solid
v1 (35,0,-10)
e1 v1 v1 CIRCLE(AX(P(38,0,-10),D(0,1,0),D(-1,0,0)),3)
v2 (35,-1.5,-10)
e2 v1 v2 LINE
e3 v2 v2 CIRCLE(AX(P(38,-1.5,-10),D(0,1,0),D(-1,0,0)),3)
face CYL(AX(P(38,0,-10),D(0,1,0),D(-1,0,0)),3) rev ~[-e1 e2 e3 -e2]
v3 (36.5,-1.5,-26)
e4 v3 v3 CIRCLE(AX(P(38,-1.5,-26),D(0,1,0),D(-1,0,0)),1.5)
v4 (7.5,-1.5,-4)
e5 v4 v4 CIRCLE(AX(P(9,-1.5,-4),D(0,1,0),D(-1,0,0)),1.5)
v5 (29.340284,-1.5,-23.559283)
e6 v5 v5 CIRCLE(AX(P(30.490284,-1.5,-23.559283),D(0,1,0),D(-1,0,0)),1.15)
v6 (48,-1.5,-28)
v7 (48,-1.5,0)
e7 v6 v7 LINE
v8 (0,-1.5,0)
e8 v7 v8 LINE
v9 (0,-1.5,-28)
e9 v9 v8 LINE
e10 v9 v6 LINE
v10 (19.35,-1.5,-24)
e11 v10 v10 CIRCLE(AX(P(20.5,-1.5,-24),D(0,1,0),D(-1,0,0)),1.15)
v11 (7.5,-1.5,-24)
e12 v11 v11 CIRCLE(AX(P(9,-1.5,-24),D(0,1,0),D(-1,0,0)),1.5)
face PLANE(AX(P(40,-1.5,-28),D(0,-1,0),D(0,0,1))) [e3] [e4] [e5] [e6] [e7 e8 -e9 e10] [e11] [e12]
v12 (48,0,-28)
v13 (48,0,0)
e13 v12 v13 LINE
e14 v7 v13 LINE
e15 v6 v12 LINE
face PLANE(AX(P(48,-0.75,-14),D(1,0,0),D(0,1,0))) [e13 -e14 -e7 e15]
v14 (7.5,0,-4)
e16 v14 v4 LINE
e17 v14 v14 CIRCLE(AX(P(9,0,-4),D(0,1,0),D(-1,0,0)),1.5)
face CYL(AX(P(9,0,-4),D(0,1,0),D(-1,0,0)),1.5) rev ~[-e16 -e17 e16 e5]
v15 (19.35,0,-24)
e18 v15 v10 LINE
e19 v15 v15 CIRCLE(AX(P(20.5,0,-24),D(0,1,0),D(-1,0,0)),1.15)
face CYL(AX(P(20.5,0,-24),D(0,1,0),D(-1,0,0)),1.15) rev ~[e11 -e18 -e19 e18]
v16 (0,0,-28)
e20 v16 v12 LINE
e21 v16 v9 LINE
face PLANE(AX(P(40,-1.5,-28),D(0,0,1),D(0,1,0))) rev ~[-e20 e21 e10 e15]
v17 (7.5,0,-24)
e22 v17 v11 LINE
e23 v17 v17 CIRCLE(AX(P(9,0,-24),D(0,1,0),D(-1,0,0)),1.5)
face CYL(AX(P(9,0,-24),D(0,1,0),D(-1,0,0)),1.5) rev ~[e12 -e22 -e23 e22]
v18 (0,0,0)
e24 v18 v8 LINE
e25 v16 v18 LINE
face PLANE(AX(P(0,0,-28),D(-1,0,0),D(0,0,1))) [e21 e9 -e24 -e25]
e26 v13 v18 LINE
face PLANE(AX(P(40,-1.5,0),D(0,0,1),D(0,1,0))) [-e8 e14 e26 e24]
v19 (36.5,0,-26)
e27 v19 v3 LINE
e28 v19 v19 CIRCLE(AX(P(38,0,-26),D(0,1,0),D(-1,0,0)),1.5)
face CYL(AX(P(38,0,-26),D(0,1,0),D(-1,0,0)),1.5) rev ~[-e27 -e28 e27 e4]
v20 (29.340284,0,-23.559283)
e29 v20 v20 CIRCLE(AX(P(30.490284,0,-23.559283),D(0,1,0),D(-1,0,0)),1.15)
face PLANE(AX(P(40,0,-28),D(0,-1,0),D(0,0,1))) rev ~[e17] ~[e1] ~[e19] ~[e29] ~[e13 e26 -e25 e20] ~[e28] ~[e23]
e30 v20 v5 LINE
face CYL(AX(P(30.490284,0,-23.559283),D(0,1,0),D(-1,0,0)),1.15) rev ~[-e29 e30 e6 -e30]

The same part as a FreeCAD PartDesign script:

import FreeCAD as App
import Part
import Sketcher
Q = App.Units.Quantity


def add_polygon(sketch, points):
    """Adds a closed chain of lines whose ends are joined by coincident constraints."""
    first, n = sketch.GeometryCount, len(points)
    for a, b in zip(points, points[1:] + points[:1]):
        sketch.addGeometry(Part.LineSegment(App.Vector(*a, 0), App.Vector(*b, 0)), False)
    for i in range(n):
        sketch.addConstraint(Sketcher.Constraint("Coincident", first + i, 2, first + (i + 1) % n, 1))

doc = App.newDocument("Part")
body = doc.addObject("PartDesign::Body", "Body")

sketch1 = body.newObject("Sketcher::SketchObject", "Sketch")
sketch1.AttachmentSupport = (doc.getObject("XZ_Plane"), [""])
sketch1.MapMode = "FlatFace"
add_polygon(sketch1, [(0, 0), (0, -28), (40, -28), (40, 0)])
sketch1.addConstraint([
    Sketcher.Constraint("Vertical", 0),
    Sketcher.Constraint("Horizontal", 1),
    Sketcher.Constraint("Vertical", 2),
    Sketcher.Constraint("Horizontal", 3),
    Sketcher.Constraint("Coincident", 3, 2, -1, 1),
    Sketcher.Constraint("DistanceX", 1, 1, 1, 2, Q("40 mm")),
    Sketcher.Constraint("DistanceY", 0, 2, 0, 1, Q("28 mm")),
])
pad1 = body.newObject("PartDesign::Pad", "Pad")
pad1.Profile = sketch1
pad1.Length = 1.5

sketch2 = body.newObject("Sketcher::SketchObject", "Sketch001")
sketch2.AttachmentSupport = (doc.getObject("XZ_Plane"), [""])
sketch2.MapMode = "FlatFace"
sketch2.addGeometry([
    Part.Circle(App.Vector(38, -26, 0), App.Vector(0, 0, 1), 1.5),
    Part.Circle(App.Vector(9, -24, 0), App.Vector(0, 0, 1), 1.5),
    Part.Circle(App.Vector(9, -4, 0), App.Vector(0, 0, 1), 1.5),
], False)
sketch2.addConstraint([
    Sketcher.Constraint("Equal", 0, 1),
    Sketcher.Constraint("Equal", 1, 2),
    Sketcher.Constraint("Vertical", 1, 3, 2, 3),
    Sketcher.Constraint("Diameter", 0, Q("3 mm")),
    Sketcher.Constraint("DistanceX", -1, 1, 0, 3, Q("38 mm")),
    Sketcher.Constraint("DistanceY", 0, 3, -1, 1, Q("26 mm")),
    Sketcher.Constraint("DistanceX", -1, 1, 1, 3, Q("9 mm")),
    Sketcher.Constraint("DistanceY", 1, 3, -1, 1, Q("24 mm")),
    Sketcher.Constraint("DistanceY", 2, 3, -1, 1, Q("4 mm")),
])
pocket1 = body.newObject("PartDesign::Pocket", "Pocket")
pocket1.Profile = sketch2
pocket1.Type = "ThroughAll"
pocket1.Reversed = True

sketch3 = body.newObject("Sketcher::SketchObject", "Sketch002")
sketch3.AttachmentSupport = (doc.getObject("XZ_Plane"), [""])
sketch3.MapMode = "FlatFace"
sketch3.addGeometry([
    Part.Circle(App.Vector(20.5, -24, 0), App.Vector(0, 0, 1), 1.1),
    Part.Circle(App.Vector(30.5, -23.6, 0), App.Vector(0, 0, 1), 1.1),
], False)
sketch3.addConstraint([
    Sketcher.Constraint("Equal", 0, 1),
    Sketcher.Constraint("Diameter", 0, Q("2.3 mm")),
    Sketcher.Constraint("DistanceY", 0, 3, -1, 1, Q("24 mm")),
    Sketcher.Constraint("DistanceX", -1, 1, 0, 3, Q("20.5 mm")),
    Sketcher.Constraint("DistanceX", -1, 1, 1, 3, Q("30.490284 mm")),
    Sketcher.Constraint("DistanceY", 1, 3, -1, 1, Q("23.559283 mm")),
])
pocket2 = body.newObject("PartDesign::Pocket", "Pocket001")
pocket2.Profile = sketch3
pocket2.Type = "ThroughAll"
pocket2.Reversed = True

sketch4 = body.newObject("Sketcher::SketchObject", "Sketch003")
sketch4.AttachmentSupport = (doc.getObject("YZ_Plane"), [""])
sketch4.MapMode = "FlatFace"
sketch4.AttachmentOffset = App.Placement(App.Vector(0, 0, 40), App.Rotation())
add_polygon(sketch4, [(-1.5, 0), (-1.5, -28), (0, -28), (0, 0)])
sketch4.addConstraint([
    Sketcher.Constraint("Vertical", 0),
    Sketcher.Constraint("Horizontal", 1),
    Sketcher.Constraint("Vertical", 2),
    Sketcher.Constraint("Horizontal", 3),
    Sketcher.Constraint("Coincident", 2, 2, -1, 1),
    Sketcher.Constraint("DistanceY", 0, 2, 0, 1, Q("28 mm")),
    Sketcher.Constraint("DistanceX", 1, 1, 1, 2, Q("1.5 mm")),
])
pad2 = body.newObject("PartDesign::Pad", "Pad001")
pad2.Profile = sketch4
pad2.Length = 8

sketch5 = body.newObject("Sketcher::SketchObject", "Sketch004")
sketch5.AttachmentSupport = (doc.getObject("XZ_Plane"), [""])
sketch5.MapMode = "FlatFace"
sketch5.addGeometry(Part.Circle(App.Vector(38, -10, 0), App.Vector(0, 0, 1), 3), False)
sketch5.addConstraint([
    Sketcher.Constraint("Diameter", 0, Q("6 mm")),
    Sketcher.Constraint("DistanceX", -1, 1, 0, 3, Q("38 mm")),
    Sketcher.Constraint("DistanceY", 0, 3, -1, 1, Q("10 mm")),
])
pocket3 = body.newObject("PartDesign::Pocket", "Pocket002")
pocket3.Profile = sketch5
pocket3.Type = "ThroughAll"
pocket3.Reversed = True

doc.recompute()
